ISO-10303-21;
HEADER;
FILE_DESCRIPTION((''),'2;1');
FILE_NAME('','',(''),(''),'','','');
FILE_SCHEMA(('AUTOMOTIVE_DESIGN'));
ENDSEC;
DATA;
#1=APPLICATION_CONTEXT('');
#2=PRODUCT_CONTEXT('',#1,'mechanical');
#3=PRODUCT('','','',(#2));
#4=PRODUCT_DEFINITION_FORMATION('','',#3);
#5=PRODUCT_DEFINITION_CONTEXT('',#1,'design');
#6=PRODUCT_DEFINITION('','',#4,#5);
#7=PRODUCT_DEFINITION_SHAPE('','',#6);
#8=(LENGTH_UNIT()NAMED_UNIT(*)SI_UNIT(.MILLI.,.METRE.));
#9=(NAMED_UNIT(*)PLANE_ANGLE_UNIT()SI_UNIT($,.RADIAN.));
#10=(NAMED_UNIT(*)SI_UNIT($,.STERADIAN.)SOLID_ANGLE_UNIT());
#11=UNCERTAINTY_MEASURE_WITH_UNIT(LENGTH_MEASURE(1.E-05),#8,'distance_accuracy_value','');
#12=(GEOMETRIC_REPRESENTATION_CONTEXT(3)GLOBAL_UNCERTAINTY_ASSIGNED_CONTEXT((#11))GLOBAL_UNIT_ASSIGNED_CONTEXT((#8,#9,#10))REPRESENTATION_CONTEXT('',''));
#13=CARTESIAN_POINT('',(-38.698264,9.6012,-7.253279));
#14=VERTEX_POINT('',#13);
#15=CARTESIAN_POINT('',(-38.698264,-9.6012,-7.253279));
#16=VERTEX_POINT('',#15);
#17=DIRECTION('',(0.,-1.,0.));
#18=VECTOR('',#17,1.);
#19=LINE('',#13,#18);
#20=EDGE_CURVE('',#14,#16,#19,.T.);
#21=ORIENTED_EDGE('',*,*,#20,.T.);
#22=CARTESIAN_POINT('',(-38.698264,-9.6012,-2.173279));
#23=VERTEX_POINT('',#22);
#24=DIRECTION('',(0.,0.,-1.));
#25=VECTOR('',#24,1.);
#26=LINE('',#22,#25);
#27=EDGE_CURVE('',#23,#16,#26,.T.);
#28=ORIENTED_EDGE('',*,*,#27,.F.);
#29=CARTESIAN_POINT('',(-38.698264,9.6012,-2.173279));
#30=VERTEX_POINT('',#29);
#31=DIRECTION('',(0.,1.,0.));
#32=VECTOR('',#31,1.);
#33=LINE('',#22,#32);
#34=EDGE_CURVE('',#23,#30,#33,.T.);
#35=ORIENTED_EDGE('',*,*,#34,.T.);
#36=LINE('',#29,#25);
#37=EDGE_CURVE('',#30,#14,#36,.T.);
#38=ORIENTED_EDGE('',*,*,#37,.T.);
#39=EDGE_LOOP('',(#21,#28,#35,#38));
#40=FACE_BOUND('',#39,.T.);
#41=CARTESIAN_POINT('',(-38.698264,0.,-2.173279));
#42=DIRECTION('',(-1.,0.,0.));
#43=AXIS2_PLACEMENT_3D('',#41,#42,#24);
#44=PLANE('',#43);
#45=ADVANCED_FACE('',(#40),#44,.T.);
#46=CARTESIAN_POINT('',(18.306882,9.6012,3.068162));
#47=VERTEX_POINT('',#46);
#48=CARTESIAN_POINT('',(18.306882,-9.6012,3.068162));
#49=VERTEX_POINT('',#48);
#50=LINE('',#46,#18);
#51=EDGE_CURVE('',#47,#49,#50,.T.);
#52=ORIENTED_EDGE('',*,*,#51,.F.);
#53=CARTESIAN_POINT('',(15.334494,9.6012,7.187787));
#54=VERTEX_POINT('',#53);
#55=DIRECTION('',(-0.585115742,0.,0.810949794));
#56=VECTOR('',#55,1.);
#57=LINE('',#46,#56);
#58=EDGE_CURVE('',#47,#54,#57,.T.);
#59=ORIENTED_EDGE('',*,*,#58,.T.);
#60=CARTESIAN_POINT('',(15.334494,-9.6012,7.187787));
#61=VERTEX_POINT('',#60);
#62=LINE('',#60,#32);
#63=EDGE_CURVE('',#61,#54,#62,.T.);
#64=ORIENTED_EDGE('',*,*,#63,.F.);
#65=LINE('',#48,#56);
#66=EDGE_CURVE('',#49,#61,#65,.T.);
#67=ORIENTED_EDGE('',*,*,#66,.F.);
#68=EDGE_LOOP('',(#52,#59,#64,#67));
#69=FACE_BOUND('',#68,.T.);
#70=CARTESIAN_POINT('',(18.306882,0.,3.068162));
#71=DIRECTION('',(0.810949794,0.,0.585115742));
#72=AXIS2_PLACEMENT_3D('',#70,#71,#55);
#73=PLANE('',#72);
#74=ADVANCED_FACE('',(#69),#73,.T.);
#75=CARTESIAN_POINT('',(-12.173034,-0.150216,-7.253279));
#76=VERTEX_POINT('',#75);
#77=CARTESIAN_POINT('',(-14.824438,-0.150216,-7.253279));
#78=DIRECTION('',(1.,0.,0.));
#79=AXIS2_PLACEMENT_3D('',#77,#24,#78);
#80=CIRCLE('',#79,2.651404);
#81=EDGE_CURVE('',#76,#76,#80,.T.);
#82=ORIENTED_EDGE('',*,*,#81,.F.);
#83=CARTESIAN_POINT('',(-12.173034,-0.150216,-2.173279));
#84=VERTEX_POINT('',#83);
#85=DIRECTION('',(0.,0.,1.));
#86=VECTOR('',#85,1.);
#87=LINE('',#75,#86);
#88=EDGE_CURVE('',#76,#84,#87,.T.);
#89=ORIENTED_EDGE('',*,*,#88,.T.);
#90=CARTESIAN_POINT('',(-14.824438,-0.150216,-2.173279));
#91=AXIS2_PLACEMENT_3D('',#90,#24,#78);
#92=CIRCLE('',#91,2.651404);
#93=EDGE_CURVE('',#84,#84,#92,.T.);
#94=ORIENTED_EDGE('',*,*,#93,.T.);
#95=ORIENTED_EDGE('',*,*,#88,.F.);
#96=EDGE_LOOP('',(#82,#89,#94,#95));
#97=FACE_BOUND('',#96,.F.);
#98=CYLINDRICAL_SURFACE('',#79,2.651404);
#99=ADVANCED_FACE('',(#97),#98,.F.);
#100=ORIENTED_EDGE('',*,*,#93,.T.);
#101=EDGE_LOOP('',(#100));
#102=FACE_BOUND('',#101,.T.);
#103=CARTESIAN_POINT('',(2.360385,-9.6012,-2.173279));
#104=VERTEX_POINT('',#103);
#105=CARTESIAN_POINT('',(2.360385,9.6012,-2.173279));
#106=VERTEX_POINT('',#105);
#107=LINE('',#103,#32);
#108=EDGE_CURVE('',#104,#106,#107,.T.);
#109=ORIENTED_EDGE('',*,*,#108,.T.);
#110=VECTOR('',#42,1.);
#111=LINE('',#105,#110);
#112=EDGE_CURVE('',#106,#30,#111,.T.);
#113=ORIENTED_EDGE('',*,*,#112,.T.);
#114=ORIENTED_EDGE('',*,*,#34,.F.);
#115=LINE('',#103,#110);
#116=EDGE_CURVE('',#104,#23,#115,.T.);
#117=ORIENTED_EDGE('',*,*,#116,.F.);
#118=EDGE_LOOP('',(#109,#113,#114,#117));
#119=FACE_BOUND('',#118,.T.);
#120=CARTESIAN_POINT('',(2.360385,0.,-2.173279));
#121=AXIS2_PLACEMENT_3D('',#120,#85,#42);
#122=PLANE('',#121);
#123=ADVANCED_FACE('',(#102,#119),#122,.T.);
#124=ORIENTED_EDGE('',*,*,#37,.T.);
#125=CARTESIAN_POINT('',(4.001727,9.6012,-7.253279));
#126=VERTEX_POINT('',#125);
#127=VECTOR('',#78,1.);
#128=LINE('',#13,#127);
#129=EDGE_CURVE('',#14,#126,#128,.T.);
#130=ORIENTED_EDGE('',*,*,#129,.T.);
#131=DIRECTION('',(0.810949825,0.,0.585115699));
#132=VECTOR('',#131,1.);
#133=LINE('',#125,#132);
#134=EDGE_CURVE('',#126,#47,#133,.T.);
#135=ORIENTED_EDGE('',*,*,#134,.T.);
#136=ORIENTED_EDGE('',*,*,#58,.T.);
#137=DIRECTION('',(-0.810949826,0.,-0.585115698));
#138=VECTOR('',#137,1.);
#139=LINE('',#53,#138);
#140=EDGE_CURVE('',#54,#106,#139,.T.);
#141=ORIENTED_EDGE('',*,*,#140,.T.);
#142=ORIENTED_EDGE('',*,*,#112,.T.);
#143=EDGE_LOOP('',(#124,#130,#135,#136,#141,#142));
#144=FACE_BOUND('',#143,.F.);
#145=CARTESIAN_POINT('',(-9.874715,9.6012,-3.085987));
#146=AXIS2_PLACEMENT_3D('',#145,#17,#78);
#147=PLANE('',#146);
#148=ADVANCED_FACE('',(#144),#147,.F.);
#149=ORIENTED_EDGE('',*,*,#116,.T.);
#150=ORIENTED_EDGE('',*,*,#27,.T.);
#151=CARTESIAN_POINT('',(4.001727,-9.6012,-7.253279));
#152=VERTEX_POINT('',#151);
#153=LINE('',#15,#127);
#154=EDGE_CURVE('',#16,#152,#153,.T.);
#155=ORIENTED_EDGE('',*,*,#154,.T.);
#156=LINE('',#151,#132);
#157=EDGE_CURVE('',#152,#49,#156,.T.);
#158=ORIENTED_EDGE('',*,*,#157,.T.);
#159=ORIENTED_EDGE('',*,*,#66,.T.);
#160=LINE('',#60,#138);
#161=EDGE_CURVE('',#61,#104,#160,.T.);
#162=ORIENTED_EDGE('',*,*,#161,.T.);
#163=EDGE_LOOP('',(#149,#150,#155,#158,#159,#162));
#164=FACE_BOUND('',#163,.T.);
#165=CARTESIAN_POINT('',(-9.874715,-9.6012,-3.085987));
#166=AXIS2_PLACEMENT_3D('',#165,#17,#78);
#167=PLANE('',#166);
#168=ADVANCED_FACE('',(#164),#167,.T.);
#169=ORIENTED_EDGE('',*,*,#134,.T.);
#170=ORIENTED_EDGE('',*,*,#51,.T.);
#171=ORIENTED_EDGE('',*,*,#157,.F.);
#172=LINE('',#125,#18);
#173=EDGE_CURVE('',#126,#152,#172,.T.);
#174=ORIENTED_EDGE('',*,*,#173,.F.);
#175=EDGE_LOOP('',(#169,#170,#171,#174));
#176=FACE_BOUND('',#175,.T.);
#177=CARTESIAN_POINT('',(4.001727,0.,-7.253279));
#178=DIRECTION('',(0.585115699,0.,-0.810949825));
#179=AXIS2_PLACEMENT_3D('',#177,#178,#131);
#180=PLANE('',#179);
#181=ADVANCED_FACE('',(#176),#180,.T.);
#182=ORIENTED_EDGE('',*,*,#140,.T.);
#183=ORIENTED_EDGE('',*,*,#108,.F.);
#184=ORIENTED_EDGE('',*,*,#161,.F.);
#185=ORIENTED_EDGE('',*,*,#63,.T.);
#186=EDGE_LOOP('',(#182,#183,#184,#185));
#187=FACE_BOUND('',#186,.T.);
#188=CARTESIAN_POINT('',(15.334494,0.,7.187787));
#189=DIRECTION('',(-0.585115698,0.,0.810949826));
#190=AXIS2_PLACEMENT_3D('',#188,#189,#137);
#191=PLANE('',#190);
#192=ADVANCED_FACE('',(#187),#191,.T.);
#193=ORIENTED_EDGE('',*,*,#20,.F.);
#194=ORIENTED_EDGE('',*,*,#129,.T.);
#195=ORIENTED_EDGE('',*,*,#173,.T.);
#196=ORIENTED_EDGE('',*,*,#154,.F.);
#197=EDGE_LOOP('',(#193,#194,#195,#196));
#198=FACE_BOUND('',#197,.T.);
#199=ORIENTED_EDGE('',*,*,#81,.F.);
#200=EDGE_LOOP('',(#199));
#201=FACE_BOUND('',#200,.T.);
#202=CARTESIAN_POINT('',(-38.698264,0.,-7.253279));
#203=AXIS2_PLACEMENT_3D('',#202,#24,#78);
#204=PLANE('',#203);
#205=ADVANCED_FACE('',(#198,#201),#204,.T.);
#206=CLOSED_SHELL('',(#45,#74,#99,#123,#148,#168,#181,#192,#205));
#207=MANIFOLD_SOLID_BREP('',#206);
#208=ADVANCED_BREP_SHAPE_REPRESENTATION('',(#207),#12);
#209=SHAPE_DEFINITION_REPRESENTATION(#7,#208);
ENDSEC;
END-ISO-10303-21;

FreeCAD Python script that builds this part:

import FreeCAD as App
import Part
import Sketcher
from FreeCAD import Vector
Q = App.Units.Quantity


def add_polygon(sketch, points):
    """Adds a closed chain of lines whose ends are joined by coincident constraints."""
    first, n = sketch.GeometryCount, len(points)
    for a, b in zip(points, points[1:] + points[:1]):
        sketch.addGeometry(Part.LineSegment(App.Vector(*a, 0), App.Vector(*b, 0)), False)
    for i in range(n):
        sketch.addConstraint(Sketcher.Constraint("Coincident", first + i, 2, first + (i + 1) % n, 1))

doc = App.newDocument("Part")
body = doc.addObject("PartDesign::Body", "Body")

# Sketch on XZ plane
sketch1 = doc.addObject("Sketcher::SketchObject", "Sketch")
body.addObject(sketch1)
sketch1.AttachmentSupport = (doc.XZ_Plane, [""])
sketch1.MapMode = "FlatFace"
add_polygon(sketch1, [(-39, -2), (-39, -7), (4, -7), (18, 3), (15, 7), (2, -2)])  # lines 0-5
sketch1.addConstraint(Sketcher.Constraint("Vertical", 0))
sketch1.addConstraint(Sketcher.Constraint("Horizontal", 1))
sketch1.addConstraint(Sketcher.Constraint("Horizontal", 5))
sketch1.addConstraint(Sketcher.Constraint("Perpendicular", 2, 3))
sketch1.addConstraint(Sketcher.Constraint("Perpendicular", 3, 4))
sketch1.addConstraint(Sketcher.Constraint("DistanceY", 0, 2, 0, 1, Q("0.2 in")))
sketch1.addConstraint(Sketcher.Constraint("Distance", 3, Q("0.2 in")))
sketch1.addConstraint(Sketcher.Constraint("Distance", 2, 17.64))
sketch1.addConstraint(Sketcher.Constraint("DistanceX", 1, 1, 1, 2, 42.699991))
sketch1.addConstraint(Sketcher.Constraint("DistanceX", 5, 2, 5, 1, 41.058649))
sketch1.addConstraint(Sketcher.Constraint("DistanceY", 0, 2, -1, 1, 7.253279))
sketch1.addConstraint(Sketcher.Constraint("DistanceX", 0, 2, -1, 1, 38.698264))
pad1 = doc.addObject("PartDesign::Pad", "Pad")
body.addObject(pad1)
pad1.Profile = sketch1
pad1.Length = Q("0.756 in")
pad1.Midplane = True

# Sketch on XY plane
sketch2 = doc.addObject("Sketcher::SketchObject", "Sketch001")
body.addObject(sketch2)
sketch2.AttachmentSupport = (doc.XY_Plane, [""])
sketch2.MapMode = "FlatFace"
sketch2.AttachmentOffset = App.Placement(Vector(0, 0, -7.253279), App.Rotation())
sketch2.addGeometry(Part.Circle(Vector(-14.8, -0.2, 0), Vector(0, 0, 1), 2.7), False)
sketch2.addConstraint(Sketcher.Constraint("Diameter", 0, 5.302808))
sketch2.addConstraint(Sketcher.Constraint("DistanceX", 0, 3, -1, 1, 14.824438))
sketch2.addConstraint(Sketcher.Constraint("DistanceY", 0, 3, -1, 1, 0.150216))
pocket1 = doc.addObject("PartDesign::Pocket", "Pocket")
body.addObject(pocket1)
pocket1.Profile = sketch2
pocket1.Type = "ThroughAll"
pocket1.Reversed = True

doc.recompute()
